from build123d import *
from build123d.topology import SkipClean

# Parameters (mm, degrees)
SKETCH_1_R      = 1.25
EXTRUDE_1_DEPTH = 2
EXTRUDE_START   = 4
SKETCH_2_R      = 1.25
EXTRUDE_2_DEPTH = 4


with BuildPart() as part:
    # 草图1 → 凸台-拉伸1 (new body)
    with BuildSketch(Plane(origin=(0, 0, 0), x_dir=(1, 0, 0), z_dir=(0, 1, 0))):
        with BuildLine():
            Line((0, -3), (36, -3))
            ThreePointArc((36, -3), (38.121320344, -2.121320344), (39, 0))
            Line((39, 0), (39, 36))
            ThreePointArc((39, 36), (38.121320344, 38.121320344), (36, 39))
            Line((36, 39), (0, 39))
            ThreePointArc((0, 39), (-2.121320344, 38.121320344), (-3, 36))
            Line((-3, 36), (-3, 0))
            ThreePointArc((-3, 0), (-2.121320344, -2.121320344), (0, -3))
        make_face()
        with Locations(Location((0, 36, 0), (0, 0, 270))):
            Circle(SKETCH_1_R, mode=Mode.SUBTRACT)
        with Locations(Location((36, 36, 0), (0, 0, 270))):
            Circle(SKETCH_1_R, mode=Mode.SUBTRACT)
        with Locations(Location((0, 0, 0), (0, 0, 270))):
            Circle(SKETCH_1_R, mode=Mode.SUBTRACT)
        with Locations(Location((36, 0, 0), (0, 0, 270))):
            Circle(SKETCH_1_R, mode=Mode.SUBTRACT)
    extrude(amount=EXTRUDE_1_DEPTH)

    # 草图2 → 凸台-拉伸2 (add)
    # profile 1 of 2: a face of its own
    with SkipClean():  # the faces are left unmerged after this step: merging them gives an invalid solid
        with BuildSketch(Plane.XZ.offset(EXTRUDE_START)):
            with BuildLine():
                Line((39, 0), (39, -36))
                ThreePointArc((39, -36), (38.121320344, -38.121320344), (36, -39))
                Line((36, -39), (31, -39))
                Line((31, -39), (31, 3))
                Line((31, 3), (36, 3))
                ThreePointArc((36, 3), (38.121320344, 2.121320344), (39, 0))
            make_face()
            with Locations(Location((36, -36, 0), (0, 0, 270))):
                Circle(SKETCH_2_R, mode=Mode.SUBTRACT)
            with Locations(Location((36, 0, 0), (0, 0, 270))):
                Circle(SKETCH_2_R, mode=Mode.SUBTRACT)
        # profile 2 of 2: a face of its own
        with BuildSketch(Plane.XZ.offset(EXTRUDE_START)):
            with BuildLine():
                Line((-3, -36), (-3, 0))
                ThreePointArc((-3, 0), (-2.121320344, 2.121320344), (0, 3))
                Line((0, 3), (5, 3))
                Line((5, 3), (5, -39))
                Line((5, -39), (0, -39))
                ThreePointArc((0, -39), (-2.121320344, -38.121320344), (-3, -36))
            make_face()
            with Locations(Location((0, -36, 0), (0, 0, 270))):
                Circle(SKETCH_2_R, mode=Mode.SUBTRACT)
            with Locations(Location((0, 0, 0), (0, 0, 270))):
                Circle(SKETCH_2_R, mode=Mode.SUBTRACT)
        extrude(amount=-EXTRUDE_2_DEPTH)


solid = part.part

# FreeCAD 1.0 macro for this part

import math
import FreeCAD as App
import Part
import Sketcher

doc = App.newDocument("Part")
body = doc.addObject("PartDesign::Body", "Body")

# Sketch on XZ plane
sketch1 = body.newObject("Sketcher::SketchObject", "Sketch")
sketch1.AttachmentSupport = (doc.getObject("XZ_Plane"), [""])
sketch1.MapMode = "FlatFace"
sketch1.addGeometry([
    Part.LineSegment(App.Vector(0, 3, 0), App.Vector(36, 3, 0)),  # 0
    Part.ArcOfCircle(Part.Circle(App.Vector(36, 0, 0), App.Vector(0, 0, 1), 3), math.radians(0), math.radians(90)),  # 1
    Part.LineSegment(App.Vector(39, 0, 0), App.Vector(39, -36, 0)),  # 2
    Part.ArcOfCircle(Part.Circle(App.Vector(36, -36, 0), App.Vector(0, 0, 1), 3), math.radians(-90), math.radians(0)),  # 3
    Part.LineSegment(App.Vector(36, -39, 0), App.Vector(0, -39, 0)),  # 4
    Part.ArcOfCircle(Part.Circle(App.Vector(0, -36, 0), App.Vector(0, 0, 1), 3), math.radians(180), math.radians(270)),  # 5
    Part.LineSegment(App.Vector(-3, -36, 0), App.Vector(-3, 0, 0)),  # 6
    Part.ArcOfCircle(Part.Circle(App.Vector(0, 0, 0), App.Vector(0, 0, 1), 3), math.radians(90), math.radians(180)),  # 7
    Part.Circle(App.Vector(0, 0, 0), App.Vector(0, 0, 1), 1.25),  # 8
    Part.Circle(App.Vector(36, 0, 0), App.Vector(0, 0, 1), 1.25),  # 9
    Part.Circle(App.Vector(0, -36, 0), App.Vector(0, 0, 1), 1.25),  # 10
    Part.Circle(App.Vector(36, -36, 0), App.Vector(0, 0, 1), 1.25),  # 11
], False)
sketch1.addConstraint([
    Sketcher.Constraint("Tangent", 0, 2, 1, 2),
    Sketcher.Constraint("Tangent", 1, 1, 2, 1),
    Sketcher.Constraint("Tangent", 2, 2, 3, 2),
    Sketcher.Constraint("Tangent", 3, 1, 4, 1),
    Sketcher.Constraint("Tangent", 4, 2, 5, 2),
    Sketcher.Constraint("Tangent", 5, 1, 6, 1),
    Sketcher.Constraint("Tangent", 6, 2, 7, 2),
    Sketcher.Constraint("Tangent", 7, 1, 0, 1),
    Sketcher.Constraint("Horizontal", 0),
    Sketcher.Constraint("Vertical", 2),
    Sketcher.Constraint("Horizontal", 4),
    Sketcher.Constraint("Vertical", 6),
    Sketcher.Constraint("Coincident", 7, 3, -1, 1),
    Sketcher.Constraint("Coincident", 8, 3, -1, 1),
    Sketcher.Constraint("Coincident", 9, 3, 1, 3),
    Sketcher.Constraint("Coincident", 10, 3, 5, 3),
    Sketcher.Constraint("Coincident", 11, 3, 3, 3),
    Sketcher.Constraint("Equal", 1, 3),
    Sketcher.Constraint("Equal", 3, 5),
    Sketcher.Constraint("Equal", 5, 7),
    Sketcher.Constraint("Equal", 8, 9),
    Sketcher.Constraint("Equal", 9, 10),
    Sketcher.Constraint("Equal", 10, 11),
    Sketcher.Constraint("Equal", 4, 2),
    Sketcher.Constraint("Radius", 1, 3.0),
    Sketcher.Constraint("Diameter", 8, 2.5),
    Sketcher.Constraint("DistanceX", 0, 1, 0, 2, 36.0),
])
pad1 = body.newObject("PartDesign::Pad", "Pad")
pad1.Profile = sketch1
pad1.Length = 2
pad1.Reversed = True

# Sketch on XZ plane
sketch2 = body.newObject("Sketcher::SketchObject", "Sketch001")
sketch2.AttachmentSupport = (doc.getObject("XZ_Plane"), [""])
sketch2.MapMode = "FlatFace"
sketch2.AttachmentOffset = App.Placement(App.Vector(0, 0, 4), App.Rotation())
sketch2.addGeometry([
    Part.LineSegment(App.Vector(39, -36, 0), App.Vector(39, 0, 0)),  # 0
    Part.ArcOfCircle(Part.Circle(App.Vector(36, 0, 0), App.Vector(0, 0, 1), 3), math.radians(0), math.radians(90)),  # 1
    Part.LineSegment(App.Vector(36, 3, 0), App.Vector(31, 3, 0)),  # 2
    Part.LineSegment(App.Vector(31, 3, 0), App.Vector(31, -39, 0)),  # 3
    Part.LineSegment(App.Vector(31, -39, 0), App.Vector(36, -39, 0)),  # 4
    Part.ArcOfCircle(Part.Circle(App.Vector(36, -36, 0), App.Vector(0, 0, 1), 3), math.radians(-90), math.radians(0)),  # 5
    Part.Circle(App.Vector(36, -36, 0), App.Vector(0, 0, 1), 1.25),  # 6
    Part.Circle(App.Vector(36, 0, 0), App.Vector(0, 0, 1), 1.25),  # 7
    Part.LineSegment(App.Vector(-3, 0, 0), App.Vector(-3, -36, 0)),  # 8
    Part.ArcOfCircle(Part.Circle(App.Vector(0, -36, 0), App.Vector(0, 0, 1), 3), math.radians(180), math.radians(270)),  # 9
    Part.LineSegment(App.Vector(0, -39, 0), App.Vector(5, -39, 0)),  # 10
    Part.LineSegment(App.Vector(5, -39, 0), App.Vector(5, 3, 0)),  # 11
    Part.LineSegment(App.Vector(5, 3, 0), App.Vector(0, 3, 0)),  # 12
    Part.ArcOfCircle(Part.Circle(App.Vector(0, 0, 0), App.Vector(0, 0, 1), 3), math.radians(90), math.radians(180)),  # 13
    Part.Circle(App.Vector(0, -36, 0), App.Vector(0, 0, 1), 1.25),  # 14
    Part.Circle(App.Vector(0, 0, 0), App.Vector(0, 0, 1), 1.25),  # 15
], False)
sketch2.addConstraint([
    Sketcher.Constraint("Tangent", 0, 2, 1, 1),
    Sketcher.Constraint("Tangent", 1, 2, 2, 1),
    Sketcher.Constraint("Coincident", 2, 2, 3, 1),
    Sketcher.Constraint("Coincident", 3, 2, 4, 1),
    Sketcher.Constraint("Tangent", 4, 2, 5, 1),
    Sketcher.Constraint("Tangent", 5, 2, 0, 1),
    Sketcher.Constraint("Tangent", 8, 2, 9, 1),
    Sketcher.Constraint("Tangent", 9, 2, 10, 1),
    Sketcher.Constraint("Coincident", 10, 2, 11, 1),
    Sketcher.Constraint("Coincident", 11, 2, 12, 1),
    Sketcher.Constraint("Tangent", 12, 2, 13, 1),
    Sketcher.Constraint("Tangent", 13, 2, 8, 1),
    Sketcher.Constraint("Vertical", 0),
    Sketcher.Constraint("Horizontal", 2),
    Sketcher.Constraint("Vertical", 3),
    Sketcher.Constraint("Horizontal", 4),
    Sketcher.Constraint("Vertical", 8),
    Sketcher.Constraint("Horizontal", 10),
    Sketcher.Constraint("Vertical", 11),
    Sketcher.Constraint("Horizontal", 12),
    Sketcher.Constraint("Coincident", 13, 3, -1, 1),
    Sketcher.Constraint("Coincident", 15, 3, -1, 1),
    Sketcher.Constraint("Coincident", 6, 3, 5, 3),
    Sketcher.Constraint("Coincident", 7, 3, 1, 3),
    Sketcher.Constraint("Coincident", 14, 3, 9, 3),
    Sketcher.Constraint("Equal", 1, 5),
    Sketcher.Constraint("Equal", 6, 7),
    Sketcher.Constraint("Equal", 5, 9),
    Sketcher.Constraint("Equal", 9, 13),
    Sketcher.Constraint("Equal", 7, 14),
    Sketcher.Constraint("Equal", 14, 15),
    Sketcher.Constraint("PointOnObject", 1, 3, -1),
    Sketcher.Constraint("Horizontal", 6, 3, 9, 3),
    Sketcher.Constraint("Equal", 4, 10),
    Sketcher.Constraint("Radius", 1, 3.0),
    Sketcher.Constraint("Diameter", 6, 2.5),
    Sketcher.Constraint("DistanceX", 2, 2, 2, 1, 5.0),
    Sketcher.Constraint("DistanceY", 0, 1, 0, 2, 36.0),
    Sketcher.Constraint("DistanceX", -1, 1, 1, 3, 36.0),
])
pad2 = body.newObject("PartDesign::Pad", "Pad001")
pad2.Profile = sketch2
pad2.Length = 4
pad2.Reversed = True

doc.recompute()
